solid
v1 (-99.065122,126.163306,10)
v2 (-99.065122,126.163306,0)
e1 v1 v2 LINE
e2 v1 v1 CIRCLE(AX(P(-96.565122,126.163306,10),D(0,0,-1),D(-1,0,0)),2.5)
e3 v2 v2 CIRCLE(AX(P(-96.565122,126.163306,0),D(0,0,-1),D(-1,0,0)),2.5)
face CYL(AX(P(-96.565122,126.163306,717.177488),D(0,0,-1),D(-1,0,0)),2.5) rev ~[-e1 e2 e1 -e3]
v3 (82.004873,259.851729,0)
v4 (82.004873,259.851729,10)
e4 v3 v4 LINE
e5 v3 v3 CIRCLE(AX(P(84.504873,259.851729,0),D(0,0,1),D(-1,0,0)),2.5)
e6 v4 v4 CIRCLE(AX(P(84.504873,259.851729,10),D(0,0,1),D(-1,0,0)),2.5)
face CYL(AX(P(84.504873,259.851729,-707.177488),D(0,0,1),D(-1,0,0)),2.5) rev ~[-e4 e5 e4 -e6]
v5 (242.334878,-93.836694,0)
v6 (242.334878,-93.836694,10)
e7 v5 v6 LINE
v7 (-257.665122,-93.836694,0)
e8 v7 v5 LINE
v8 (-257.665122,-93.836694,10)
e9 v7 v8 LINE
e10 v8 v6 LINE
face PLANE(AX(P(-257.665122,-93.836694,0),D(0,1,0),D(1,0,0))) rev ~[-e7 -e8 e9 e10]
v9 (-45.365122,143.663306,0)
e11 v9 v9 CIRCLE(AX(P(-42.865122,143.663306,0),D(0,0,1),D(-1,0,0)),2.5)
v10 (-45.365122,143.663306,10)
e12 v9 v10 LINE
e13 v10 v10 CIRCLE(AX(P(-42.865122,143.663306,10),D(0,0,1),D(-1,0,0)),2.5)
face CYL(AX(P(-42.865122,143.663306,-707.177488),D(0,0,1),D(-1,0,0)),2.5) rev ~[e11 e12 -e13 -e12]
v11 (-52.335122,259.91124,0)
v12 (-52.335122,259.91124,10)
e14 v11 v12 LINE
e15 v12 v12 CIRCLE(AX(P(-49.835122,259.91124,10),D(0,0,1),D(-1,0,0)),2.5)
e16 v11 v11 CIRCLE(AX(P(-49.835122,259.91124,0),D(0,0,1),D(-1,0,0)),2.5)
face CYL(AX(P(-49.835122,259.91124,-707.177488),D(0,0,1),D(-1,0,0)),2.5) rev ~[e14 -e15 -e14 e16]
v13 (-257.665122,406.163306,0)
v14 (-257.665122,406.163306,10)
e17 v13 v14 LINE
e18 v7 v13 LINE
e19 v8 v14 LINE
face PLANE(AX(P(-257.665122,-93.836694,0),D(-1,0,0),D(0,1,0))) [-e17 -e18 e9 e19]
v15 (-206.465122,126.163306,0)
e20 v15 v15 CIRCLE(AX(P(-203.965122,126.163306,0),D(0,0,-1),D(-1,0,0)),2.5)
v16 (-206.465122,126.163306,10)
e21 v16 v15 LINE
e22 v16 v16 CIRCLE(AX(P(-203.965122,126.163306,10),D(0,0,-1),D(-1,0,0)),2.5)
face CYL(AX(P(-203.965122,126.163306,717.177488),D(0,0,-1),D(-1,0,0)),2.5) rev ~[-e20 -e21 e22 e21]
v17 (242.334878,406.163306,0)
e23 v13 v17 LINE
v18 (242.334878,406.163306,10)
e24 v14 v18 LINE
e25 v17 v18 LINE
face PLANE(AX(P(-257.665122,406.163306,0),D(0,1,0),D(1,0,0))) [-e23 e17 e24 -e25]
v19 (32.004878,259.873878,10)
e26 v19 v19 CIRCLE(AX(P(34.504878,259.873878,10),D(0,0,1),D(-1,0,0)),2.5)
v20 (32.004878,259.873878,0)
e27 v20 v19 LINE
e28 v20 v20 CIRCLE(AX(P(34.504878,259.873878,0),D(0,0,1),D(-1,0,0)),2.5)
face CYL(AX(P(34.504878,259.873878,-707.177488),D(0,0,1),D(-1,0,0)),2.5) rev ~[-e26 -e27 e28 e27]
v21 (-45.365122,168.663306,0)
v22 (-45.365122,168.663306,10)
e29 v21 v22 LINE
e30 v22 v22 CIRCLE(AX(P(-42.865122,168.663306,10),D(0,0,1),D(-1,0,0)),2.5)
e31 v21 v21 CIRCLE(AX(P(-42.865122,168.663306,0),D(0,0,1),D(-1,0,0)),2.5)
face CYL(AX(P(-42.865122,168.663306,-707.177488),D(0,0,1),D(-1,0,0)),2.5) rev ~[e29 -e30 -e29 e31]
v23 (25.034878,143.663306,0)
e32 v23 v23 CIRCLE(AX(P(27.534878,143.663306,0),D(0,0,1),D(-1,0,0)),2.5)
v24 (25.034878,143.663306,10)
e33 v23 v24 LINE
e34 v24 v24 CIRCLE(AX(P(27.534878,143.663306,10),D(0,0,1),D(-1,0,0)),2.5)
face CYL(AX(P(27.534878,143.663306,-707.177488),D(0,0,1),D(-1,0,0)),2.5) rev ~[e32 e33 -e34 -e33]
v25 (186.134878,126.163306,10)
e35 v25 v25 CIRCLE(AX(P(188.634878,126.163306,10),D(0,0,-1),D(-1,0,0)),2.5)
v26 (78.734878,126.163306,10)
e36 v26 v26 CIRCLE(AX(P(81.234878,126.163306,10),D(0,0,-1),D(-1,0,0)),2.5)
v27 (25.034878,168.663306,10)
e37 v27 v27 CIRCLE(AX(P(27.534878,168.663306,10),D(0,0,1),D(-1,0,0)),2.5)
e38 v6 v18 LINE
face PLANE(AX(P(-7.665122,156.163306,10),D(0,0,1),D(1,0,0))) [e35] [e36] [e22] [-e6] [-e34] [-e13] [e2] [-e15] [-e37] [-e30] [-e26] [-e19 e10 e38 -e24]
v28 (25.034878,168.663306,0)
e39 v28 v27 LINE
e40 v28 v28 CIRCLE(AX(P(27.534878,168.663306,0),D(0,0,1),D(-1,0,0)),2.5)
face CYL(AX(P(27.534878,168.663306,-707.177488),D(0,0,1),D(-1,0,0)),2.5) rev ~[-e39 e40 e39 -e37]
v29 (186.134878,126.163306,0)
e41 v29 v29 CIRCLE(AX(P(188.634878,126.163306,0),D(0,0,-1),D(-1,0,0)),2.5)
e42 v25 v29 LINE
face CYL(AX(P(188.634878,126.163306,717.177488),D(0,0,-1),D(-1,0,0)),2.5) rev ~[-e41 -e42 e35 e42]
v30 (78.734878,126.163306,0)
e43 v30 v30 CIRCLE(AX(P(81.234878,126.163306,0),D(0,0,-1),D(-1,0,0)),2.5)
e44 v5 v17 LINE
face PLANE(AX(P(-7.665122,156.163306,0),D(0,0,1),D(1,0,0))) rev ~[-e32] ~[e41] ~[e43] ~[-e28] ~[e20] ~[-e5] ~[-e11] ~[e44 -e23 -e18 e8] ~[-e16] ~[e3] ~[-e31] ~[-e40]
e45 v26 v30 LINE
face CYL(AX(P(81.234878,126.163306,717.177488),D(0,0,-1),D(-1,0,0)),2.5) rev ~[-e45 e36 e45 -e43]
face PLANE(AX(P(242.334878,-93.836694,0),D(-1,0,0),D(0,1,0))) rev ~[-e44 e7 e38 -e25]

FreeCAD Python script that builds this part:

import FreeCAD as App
import Part
import Sketcher

V = App.Vector
Q = App.Units.Quantity


def add_polygon(sketch, points):
    """Adds a closed chain of lines whose ends are joined by coincident constraints."""
    first, n = sketch.GeometryCount, len(points)
    for a, b in zip(points, points[1:] + points[:1]):
        sketch.addGeometry(Part.LineSegment(App.Vector(*a, 0), App.Vector(*b, 0)), False)
    for i in range(n):
        sketch.addConstraint(Sketcher.Constraint("Coincident", first + i, 2, first + (i + 1) % n, 1))

doc = App.newDocument("Part")
body = doc.addObject("PartDesign::Body", "Body")

# Sketch on XY plane
sketch1 = doc.addObject("Sketcher::SketchObject", "Sketch")
body.addObject(sketch1)
sketch1.AttachmentSupport = (doc.XY_Plane, [""])
sketch1.MapMode = "FlatFace"
add_polygon(sketch1, [(-257.665122, 406.163306), (-257.665122, -93.836694), (242.334878, -93.836694), (242.334878, 406.163306)])  # lines 0-3
sketch1.addConstraint(Sketcher.Constraint("Vertical", 0))
sketch1.addConstraint(Sketcher.Constraint("Horizontal", 1))
sketch1.addConstraint(Sketcher.Constraint("Vertical", 2))
sketch1.addConstraint(Sketcher.Constraint("Horizontal", 3))
sketch1.addConstraint(Sketcher.Constraint("Equal", 3, 0))
sketch1.addConstraint(Sketcher.Constraint("DistanceX", 1, 1, 1, 2, Q("500 mm")))
sketch1.addConstraint(Sketcher.Constraint("DistanceX", 0, 2, -1, 1, Q("257.665122 mm")))
sketch1.addConstraint(Sketcher.Constraint("DistanceY", 0, 2, -1, 1, Q("93.836694 mm")))
pad1 = doc.addObject("PartDesign::Pad", "Pad")
body.addObject(pad1)
pad1.Profile = sketch1
pad1.Length = 10

# Sketch on XY plane
sketch2 = doc.addObject("Sketcher::SketchObject", "Sketch001")
body.addObject(sketch2)
sketch2.AttachmentSupport = (doc.XY_Plane, [""])
sketch2.MapMode = "FlatFace"
sketch2.addGeometry(Part.Circle(V(-42.865122, 143.663306, 0), V(0, 0, 1), 2.5), False)
sketch2.addGeometry(Part.Circle(V(27.534878, 143.663306, 0), V(0, 0, 1), 2.5), False)
sketch2.addGeometry(Part.Circle(V(27.534878, 168.663306, 0), V(0, 0, 1), 2.5), False)
sketch2.addGeometry(Part.Circle(V(-42.865122, 168.663306, 0), V(0, 0, 1), 2.5), False)
sketch2.addGeometry(Part.Circle(V(-49.835122, 259.91124, 0), V(0, 0, 1), 2.5), False)
sketch2.addGeometry(Part.Circle(V(34.504878, 259.873878, 0), V(0, 0, 1), 2.5), False)
sketch2.addGeometry(Part.Circle(V(84.504873, 259.851729, 0), V(0, 0, 1), 2.5), False)
sketch2.addConstraint(Sketcher.Constraint("Equal", 0, 1))
sketch2.addConstraint(Sketcher.Constraint("Equal", 1, 2))
sketch2.addConstraint(Sketcher.Constraint("Equal", 2, 3))
sketch2.addConstraint(Sketcher.Constraint("Equal", 3, 4))
sketch2.addConstraint(Sketcher.Constraint("Equal", 4, 5))
sketch2.addConstraint(Sketcher.Constraint("Equal", 5, 6))
sketch2.addConstraint(Sketcher.Constraint("Horizontal", 0, 3, 1, 3))
sketch2.addConstraint(Sketcher.Constraint("Horizontal", 2, 3, 3, 3))
sketch2.addConstraint(Sketcher.Constraint("Vertical", 1, 3, 2, 3))
sketch2.addConstraint(Sketcher.Constraint("Vertical", 0, 3, 3, 3))
sketch2.addConstraint(Sketcher.Constraint("Diameter", 0, Q("5 mm")))
sketch2.addConstraint(Sketcher.Constraint("DistanceY", 1, 3, 2, 3, Q("25 mm")))
sketch2.addConstraint(Sketcher.Constraint("DistanceX", 0, 3, 1, 3, Q("70.4 mm")))
sketch2.addConstraint(Sketcher.Constraint("DistanceX", 4, 3, 3, 3, Q("6.97 mm")))
sketch2.addConstraint(Sketcher.Constraint("DistanceX", 4, 3, 5, 3, Q("84.34 mm")))
sketch2.addConstraint(Sketcher.Constraint("DistanceX", 4, 3, -1, 1, Q("49.835122 mm")))
sketch2.addConstraint(Sketcher.Constraint("DistanceY", -1, 1, 4, 3, Q("259.91124 mm")))
sketch2.addConstraint(Sketcher.Constraint("DistanceY", -1, 1, 5, 3, Q("259.873878 mm")))
sketch2.addConstraint(Sketcher.Constraint("DistanceY", -1, 1, 6, 3, Q("259.851729 mm")))
sketch2.addConstraint(Sketcher.Constraint("DistanceY", 2, 3, 5, 3, Q("91.210572 mm")))
sketch2.addConstraint(Sketcher.Constraint("DistanceX", -1, 1, 6, 3, Q("84.504873 mm")))
doc.recompute()
hole = doc.addObject("PartDesign::Hole", "Hole")
body.addObject(hole)
hole.Profile = sketch2
hole.ThreadType = "None"
hole.Diameter = 5
hole.DepthType = "ThroughAll"
hole.Reversed = True

# Sketch on XY plane
sketch3 = doc.addObject("Sketcher::SketchObject", "Sketch002")
body.addObject(sketch3)
sketch3.AttachmentSupport = (doc.XY_Plane, [""])
sketch3.MapMode = "FlatFace"
sketch3.AttachmentOffset = App.Placement(V(0, 0, 10), App.Rotation())
sketch3.addGeometry(Part.Circle(V(-203.965122, 126.163306, 0), V(0, 0, 1), 2.5), False)
sketch3.addGeometry(Part.Circle(V(-96.565122, 126.163306, 0), V(0, 0, 1), 2.5), False)
sketch3.addGeometry(Part.Circle(V(81.234878, 126.163306, 0), V(0, 0, 1), 2.5), False)
sketch3.addGeometry(Part.Circle(V(188.634878, 126.163306, 0), V(0, 0, 1), 2.5), False)
sketch3.addConstraint(Sketcher.Constraint("Equal", 0, 1))
sketch3.addConstraint(Sketcher.Constraint("Equal", 1, 2))
sketch3.addConstraint(Sketcher.Constraint("Equal", 2, 3))
sketch3.addConstraint(Sketcher.Constraint("Horizontal", 0, 3, 1, 3))
sketch3.addConstraint(Sketcher.Constraint("Horizontal", 1, 3, 2, 3))
sketch3.addConstraint(Sketcher.Constraint("Horizontal", 2, 3, 3, 3))
sketch3.addConstraint(Sketcher.Constraint("Diameter", 0, Q("5 mm")))
sketch3.addConstraint(Sketcher.Constraint("DistanceX", 0, 3, 1, 3, Q("107.4 mm")))
sketch3.addConstraint(Sketcher.Constraint("DistanceX", 1, 3, 2, 3, Q("177.8 mm")))
sketch3.addConstraint(Sketcher.Constraint("DistanceX", 2, 3, 3, 3, Q("107.4 mm")))
sketch3.addConstraint(Sketcher.Constraint("DistanceX", 0, 3, -1, 1, Q("203.965122 mm")))
sketch3.addConstraint(Sketcher.Constraint("DistanceY", -1, 1, 0, 3, Q("126.163306 mm")))
doc.recompute()
hole2 = doc.addObject("PartDesign::Hole", "Hole001")
body.addObject(hole2)
hole2.Profile = sketch3
hole2.ThreadType = "None"
hole2.Diameter = 5
hole2.DepthType = "ThroughAll"

doc.recompute()
